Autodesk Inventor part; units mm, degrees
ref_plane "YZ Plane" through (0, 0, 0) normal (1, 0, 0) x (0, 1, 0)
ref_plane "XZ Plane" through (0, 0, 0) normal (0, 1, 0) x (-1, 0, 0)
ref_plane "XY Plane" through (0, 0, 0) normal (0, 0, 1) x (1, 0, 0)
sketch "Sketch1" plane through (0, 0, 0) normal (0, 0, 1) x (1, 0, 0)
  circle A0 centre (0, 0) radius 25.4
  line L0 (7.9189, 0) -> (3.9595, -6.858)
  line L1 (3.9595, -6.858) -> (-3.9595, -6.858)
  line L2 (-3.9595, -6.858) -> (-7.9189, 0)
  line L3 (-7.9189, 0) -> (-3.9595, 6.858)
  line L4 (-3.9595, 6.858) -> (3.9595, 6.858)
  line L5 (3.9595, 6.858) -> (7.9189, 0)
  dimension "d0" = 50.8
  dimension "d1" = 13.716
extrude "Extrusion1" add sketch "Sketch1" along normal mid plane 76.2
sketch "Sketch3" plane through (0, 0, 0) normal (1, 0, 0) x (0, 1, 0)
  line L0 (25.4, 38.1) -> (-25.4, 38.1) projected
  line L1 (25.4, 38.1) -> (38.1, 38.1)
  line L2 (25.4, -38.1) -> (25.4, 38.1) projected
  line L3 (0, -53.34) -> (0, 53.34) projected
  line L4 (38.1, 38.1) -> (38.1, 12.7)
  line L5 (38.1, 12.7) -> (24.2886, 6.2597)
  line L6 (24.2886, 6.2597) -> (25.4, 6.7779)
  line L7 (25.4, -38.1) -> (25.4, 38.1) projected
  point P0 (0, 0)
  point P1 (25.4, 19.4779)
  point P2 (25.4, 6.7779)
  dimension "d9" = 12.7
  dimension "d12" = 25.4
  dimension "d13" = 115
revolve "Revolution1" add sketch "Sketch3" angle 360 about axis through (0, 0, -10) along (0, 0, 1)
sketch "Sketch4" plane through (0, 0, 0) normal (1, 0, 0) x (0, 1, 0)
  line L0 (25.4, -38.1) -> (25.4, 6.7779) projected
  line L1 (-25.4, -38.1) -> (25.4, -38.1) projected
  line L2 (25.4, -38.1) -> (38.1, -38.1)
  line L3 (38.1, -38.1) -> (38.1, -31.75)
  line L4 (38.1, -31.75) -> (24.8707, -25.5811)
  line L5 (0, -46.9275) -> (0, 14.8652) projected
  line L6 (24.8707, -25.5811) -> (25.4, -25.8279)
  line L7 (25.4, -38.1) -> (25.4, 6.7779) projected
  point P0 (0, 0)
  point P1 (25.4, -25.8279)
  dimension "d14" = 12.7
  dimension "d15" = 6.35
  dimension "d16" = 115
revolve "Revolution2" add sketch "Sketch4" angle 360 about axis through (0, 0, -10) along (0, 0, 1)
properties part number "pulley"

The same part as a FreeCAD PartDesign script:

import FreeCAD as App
import Part
import Sketcher
Q = App.Units.Quantity


def add_polygon(sketch, points):
    """Adds a closed chain of lines whose ends are joined by coincident constraints."""
    first, n = sketch.GeometryCount, len(points)
    for a, b in zip(points, points[1:] + points[:1]):
        sketch.addGeometry(Part.LineSegment(App.Vector(*a, 0), App.Vector(*b, 0)), False)
    for i in range(n):
        sketch.addConstraint(Sketcher.Constraint("Coincident", first + i, 2, first + (i + 1) % n, 1))

doc = App.newDocument("Part")
body = doc.addObject("PartDesign::Body", "Body")

sketch1 = doc.addObject("Sketcher::SketchObject", "Sketch")
body.addObject(sketch1)
sketch1.AttachmentSupport = (doc.XY_Plane, [""])
sketch1.MapMode = "FlatFace"
sketch1.addGeometry(Part.Circle(App.Vector(0, 0, 0), App.Vector(0, 0, 1), 25.4), False)
add_polygon(sketch1, [(3.9595, 6.858), (7.9189, 0), (3.9595, -6.858), (-3.9595, -6.858), (-7.9189, 0), (-3.9595, 6.858)])
sketch1.addConstraint([
    Sketcher.Constraint("Horizontal", 3),
    Sketcher.Constraint("Horizontal", 6),
    Sketcher.Constraint("Coincident", 0, 3, -1, 1),
    Sketcher.Constraint("Symmetric", 1, 2, 4, 2, -1, 1),
    Sketcher.Constraint("Symmetric", 2, 2, 5, 2, -1, 1),
    Sketcher.Constraint("PointOnObject", 1, 2, -1),
    Sketcher.Constraint("Parallel", 1, 4),
    Sketcher.Constraint("Vertical", 3, 2, 5, 2),
    Sketcher.Constraint("Diameter", 0, Q("2 in")),
    Sketcher.Constraint("DistanceY", 3, 2, 5, 2, Q("0.54 in")),
    Sketcher.Constraint("Angle", 1, Q("-60.0004 deg")),
    Sketcher.Constraint("DistanceX", 3, 2, 3, 1, 7.919),
])
pad1 = doc.addObject("PartDesign::Pad", "Pad")
body.addObject(pad1)
pad1.Profile = sketch1
pad1.Length = Q("3 in")
pad1.Midplane = True

sketch2 = doc.addObject("Sketcher::SketchObject", "Sketch001")
body.addObject(sketch2)
sketch2.AttachmentSupport = (doc.YZ_Plane, [""])
sketch2.MapMode = "FlatFace"
add_polygon(sketch2, [(38.1, 38.1), (25.4, 38.1), (25.399981, 6.777941), (38.1, 12.7)])
sketch2.addConstraint([
    Sketcher.Constraint("Horizontal", 0),
    Sketcher.Constraint("Vertical", 1),
    Sketcher.Constraint("Vertical", 3),
    Sketcher.Constraint("DistanceY", 3, 1, 3, 2, Q("1 in")),
    Sketcher.Constraint("DistanceX", 0, 2, 0, 1, Q("0.5 in")),
    Sketcher.Constraint("DistanceX", -1, 1, 0, 2, Q("1 in")),
    Sketcher.Constraint("DistanceY", -1, 1, 2, 2, Q("0.5 in")),
    Sketcher.Constraint("Angle", 2, Q("24.9998 deg")),
])
revolution = doc.addObject("PartDesign::Revolution", "Revolution")
body.addObject(revolution)
revolution.Profile = sketch2
revolution.ReferenceAxis = (sketch2, ["V_Axis"])
revolution.Angle = 360

sketch3 = doc.addObject("Sketcher::SketchObject", "Sketch002")
body.addObject(sketch3)
sketch3.AttachmentSupport = (doc.YZ_Plane, [""])
sketch3.MapMode = "FlatFace"
add_polygon(sketch3, [(25.4, -25.8279), (25.4, -38.1), (38.1, -38.1), (38.1, -31.75)])
sketch3.addConstraint([
    Sketcher.Constraint("Vertical", 0),
    Sketcher.Constraint("Horizontal", 1),
    Sketcher.Constraint("Vertical", 2),
    Sketcher.Constraint("DistanceX", 1, 1, 1, 2, Q("0.5 in")),
    Sketcher.Constraint("DistanceY", 2, 1, 2, 2, Q("0.25 in")),
    Sketcher.Constraint("DistanceX", -1, 1, 0, 2, Q("1 in")),
    Sketcher.Constraint("Angle", 3, Q("155 deg")),
    Sketcher.Constraint("DistanceY", 0, 2, -1, 1, Q("1.5 in")),
])
revolution2 = doc.addObject("PartDesign::Revolution", "Revolution001")
body.addObject(revolution2)
revolution2.Profile = sketch3
revolution2.ReferenceAxis = (sketch3, ["V_Axis"])
revolution2.Angle = 360

doc.recompute()
